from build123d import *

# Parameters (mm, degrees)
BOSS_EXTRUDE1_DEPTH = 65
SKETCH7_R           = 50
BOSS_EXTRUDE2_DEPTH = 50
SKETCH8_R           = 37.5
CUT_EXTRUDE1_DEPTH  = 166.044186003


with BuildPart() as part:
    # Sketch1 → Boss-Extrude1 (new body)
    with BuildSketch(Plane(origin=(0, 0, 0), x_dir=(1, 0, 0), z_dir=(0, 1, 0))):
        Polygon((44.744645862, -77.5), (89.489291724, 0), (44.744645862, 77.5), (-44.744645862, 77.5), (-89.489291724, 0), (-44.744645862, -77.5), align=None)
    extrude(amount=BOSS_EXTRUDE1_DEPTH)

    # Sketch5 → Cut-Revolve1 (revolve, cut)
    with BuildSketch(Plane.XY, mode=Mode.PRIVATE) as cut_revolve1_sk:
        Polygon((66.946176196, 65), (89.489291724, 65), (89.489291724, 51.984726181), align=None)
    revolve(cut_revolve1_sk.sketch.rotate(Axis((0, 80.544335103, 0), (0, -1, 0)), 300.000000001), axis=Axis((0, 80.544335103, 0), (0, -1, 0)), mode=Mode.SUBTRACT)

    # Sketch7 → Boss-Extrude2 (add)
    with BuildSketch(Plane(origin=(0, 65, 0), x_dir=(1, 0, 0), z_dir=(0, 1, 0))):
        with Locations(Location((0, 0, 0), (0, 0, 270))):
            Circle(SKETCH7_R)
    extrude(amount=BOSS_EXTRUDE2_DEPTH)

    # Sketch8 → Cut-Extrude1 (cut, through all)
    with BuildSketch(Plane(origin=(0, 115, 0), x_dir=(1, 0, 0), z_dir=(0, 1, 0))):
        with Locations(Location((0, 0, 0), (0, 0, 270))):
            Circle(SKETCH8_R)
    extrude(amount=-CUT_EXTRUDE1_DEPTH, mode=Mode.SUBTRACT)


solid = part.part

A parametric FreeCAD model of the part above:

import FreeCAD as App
import Part
import Sketcher

V = App.Vector
Q = App.Units.Quantity


def add_polygon(sketch, points):
    """Adds a closed chain of lines whose ends are joined by coincident constraints."""
    first, n = sketch.GeometryCount, len(points)
    for a, b in zip(points, points[1:] + points[:1]):
        sketch.addGeometry(Part.LineSegment(App.Vector(*a, 0), App.Vector(*b, 0)), False)
    for i in range(n):
        sketch.addConstraint(Sketcher.Constraint("Coincident", first + i, 2, first + (i + 1) % n, 1))

doc = App.newDocument("Part")
body = doc.addObject("PartDesign::Body", "Body")

sketch1 = body.newObject("Sketcher::SketchObject", "Sketch")
sketch1.AttachmentSupport = (doc.getObject("XZ_Plane"), [""])
sketch1.MapMode = "FlatFace"
add_polygon(sketch1, [(45, 78), (89, 0), (45, -78), (-45, -78), (-89, 0), (-45, 78)])
sketch1.addConstraint([
    Sketcher.Constraint("Horizontal", 2),
    Sketcher.Constraint("Horizontal", 5),
    Sketcher.Constraint("Symmetric", 0, 2, 3, 2, -1, 1),
    Sketcher.Constraint("Symmetric", 1, 2, 4, 2, -1, 1),
    Sketcher.Constraint("PointOnObject", 0, 2, -1),
    Sketcher.Constraint("Parallel", 0, 3),
    Sketcher.Constraint("Vertical", 2, 2, 4, 2),
    Sketcher.Constraint("Angle", 0, Q("-60 deg")),
    Sketcher.Constraint("DistanceY", 2, 2, 4, 2, Q("155 mm")),
    Sketcher.Constraint("DistanceX", 2, 2, 2, 1, Q("89.489292 mm")),
])
pad1 = body.newObject("PartDesign::Pad", "Pad")
pad1.Profile = sketch1
pad1.Length = 65
pad1.Reversed = True

sketch2 = body.newObject("Sketcher::SketchObject", "Sketch001")
sketch2.AttachmentSupport = (doc.getObject("XY_Plane"), [""])
sketch2.MapMode = "FlatFace"
add_polygon(sketch2, [(89, 65), (67, 65), (89, 52)])
sketch2.addConstraint([
    Sketcher.Constraint("Horizontal", 0),
    Sketcher.Constraint("Vertical", 2),
    Sketcher.Constraint("Angle", 1, Q("-30 deg")),
    Sketcher.Constraint("DistanceY", -1, 1, 0, 2, Q("65 mm")),
    Sketcher.Constraint("DistanceX", 0, 2, 0, 1, Q("22.543116 mm")),
    Sketcher.Constraint("DistanceX", -1, 1, 1, 2, Q("89.489292 mm")),
])
groove = body.newObject("PartDesign::Groove", "Groove")
groove.Profile = sketch2
groove.ReferenceAxis = (sketch2, ["V_Axis"])
groove.Angle = 360

sketch3 = body.newObject("Sketcher::SketchObject", "Sketch002")
sketch3.AttachmentSupport = (doc.getObject("XZ_Plane"), [""])
sketch3.MapMode = "FlatFace"
sketch3.AttachmentOffset = App.Placement(V(0, 0, -65), App.Rotation())
sketch3.addGeometry(Part.Circle(V(0, 0, 0), V(0, 0, 1), 50), False)
sketch3.addConstraint([
    Sketcher.Constraint("Coincident", 0, 3, -1, 1),
    Sketcher.Constraint("Diameter", 0, Q("100 mm")),
])
pad2 = body.newObject("PartDesign::Pad", "Pad001")
pad2.Profile = sketch3
pad2.Length = 50
pad2.Reversed = True

sketch4 = body.newObject("Sketcher::SketchObject", "Sketch003")
sketch4.AttachmentSupport = (doc.getObject("XZ_Plane"), [""])
sketch4.MapMode = "FlatFace"
sketch4.AttachmentOffset = App.Placement(V(0, 0, -115), App.Rotation())
sketch4.addGeometry(Part.Circle(V(0, 0, 0), V(0, 0, 1), 38), False)
sketch4.addConstraint([
    Sketcher.Constraint("Coincident", 0, 3, -1, 1),
    Sketcher.Constraint("Diameter", 0, Q("75 mm")),
])
pocket1 = body.newObject("PartDesign::Pocket", "Pocket")
pocket1.Profile = sketch4
pocket1.Type = "ThroughAll"
pocket1.Reversed = True

doc.recompute()
